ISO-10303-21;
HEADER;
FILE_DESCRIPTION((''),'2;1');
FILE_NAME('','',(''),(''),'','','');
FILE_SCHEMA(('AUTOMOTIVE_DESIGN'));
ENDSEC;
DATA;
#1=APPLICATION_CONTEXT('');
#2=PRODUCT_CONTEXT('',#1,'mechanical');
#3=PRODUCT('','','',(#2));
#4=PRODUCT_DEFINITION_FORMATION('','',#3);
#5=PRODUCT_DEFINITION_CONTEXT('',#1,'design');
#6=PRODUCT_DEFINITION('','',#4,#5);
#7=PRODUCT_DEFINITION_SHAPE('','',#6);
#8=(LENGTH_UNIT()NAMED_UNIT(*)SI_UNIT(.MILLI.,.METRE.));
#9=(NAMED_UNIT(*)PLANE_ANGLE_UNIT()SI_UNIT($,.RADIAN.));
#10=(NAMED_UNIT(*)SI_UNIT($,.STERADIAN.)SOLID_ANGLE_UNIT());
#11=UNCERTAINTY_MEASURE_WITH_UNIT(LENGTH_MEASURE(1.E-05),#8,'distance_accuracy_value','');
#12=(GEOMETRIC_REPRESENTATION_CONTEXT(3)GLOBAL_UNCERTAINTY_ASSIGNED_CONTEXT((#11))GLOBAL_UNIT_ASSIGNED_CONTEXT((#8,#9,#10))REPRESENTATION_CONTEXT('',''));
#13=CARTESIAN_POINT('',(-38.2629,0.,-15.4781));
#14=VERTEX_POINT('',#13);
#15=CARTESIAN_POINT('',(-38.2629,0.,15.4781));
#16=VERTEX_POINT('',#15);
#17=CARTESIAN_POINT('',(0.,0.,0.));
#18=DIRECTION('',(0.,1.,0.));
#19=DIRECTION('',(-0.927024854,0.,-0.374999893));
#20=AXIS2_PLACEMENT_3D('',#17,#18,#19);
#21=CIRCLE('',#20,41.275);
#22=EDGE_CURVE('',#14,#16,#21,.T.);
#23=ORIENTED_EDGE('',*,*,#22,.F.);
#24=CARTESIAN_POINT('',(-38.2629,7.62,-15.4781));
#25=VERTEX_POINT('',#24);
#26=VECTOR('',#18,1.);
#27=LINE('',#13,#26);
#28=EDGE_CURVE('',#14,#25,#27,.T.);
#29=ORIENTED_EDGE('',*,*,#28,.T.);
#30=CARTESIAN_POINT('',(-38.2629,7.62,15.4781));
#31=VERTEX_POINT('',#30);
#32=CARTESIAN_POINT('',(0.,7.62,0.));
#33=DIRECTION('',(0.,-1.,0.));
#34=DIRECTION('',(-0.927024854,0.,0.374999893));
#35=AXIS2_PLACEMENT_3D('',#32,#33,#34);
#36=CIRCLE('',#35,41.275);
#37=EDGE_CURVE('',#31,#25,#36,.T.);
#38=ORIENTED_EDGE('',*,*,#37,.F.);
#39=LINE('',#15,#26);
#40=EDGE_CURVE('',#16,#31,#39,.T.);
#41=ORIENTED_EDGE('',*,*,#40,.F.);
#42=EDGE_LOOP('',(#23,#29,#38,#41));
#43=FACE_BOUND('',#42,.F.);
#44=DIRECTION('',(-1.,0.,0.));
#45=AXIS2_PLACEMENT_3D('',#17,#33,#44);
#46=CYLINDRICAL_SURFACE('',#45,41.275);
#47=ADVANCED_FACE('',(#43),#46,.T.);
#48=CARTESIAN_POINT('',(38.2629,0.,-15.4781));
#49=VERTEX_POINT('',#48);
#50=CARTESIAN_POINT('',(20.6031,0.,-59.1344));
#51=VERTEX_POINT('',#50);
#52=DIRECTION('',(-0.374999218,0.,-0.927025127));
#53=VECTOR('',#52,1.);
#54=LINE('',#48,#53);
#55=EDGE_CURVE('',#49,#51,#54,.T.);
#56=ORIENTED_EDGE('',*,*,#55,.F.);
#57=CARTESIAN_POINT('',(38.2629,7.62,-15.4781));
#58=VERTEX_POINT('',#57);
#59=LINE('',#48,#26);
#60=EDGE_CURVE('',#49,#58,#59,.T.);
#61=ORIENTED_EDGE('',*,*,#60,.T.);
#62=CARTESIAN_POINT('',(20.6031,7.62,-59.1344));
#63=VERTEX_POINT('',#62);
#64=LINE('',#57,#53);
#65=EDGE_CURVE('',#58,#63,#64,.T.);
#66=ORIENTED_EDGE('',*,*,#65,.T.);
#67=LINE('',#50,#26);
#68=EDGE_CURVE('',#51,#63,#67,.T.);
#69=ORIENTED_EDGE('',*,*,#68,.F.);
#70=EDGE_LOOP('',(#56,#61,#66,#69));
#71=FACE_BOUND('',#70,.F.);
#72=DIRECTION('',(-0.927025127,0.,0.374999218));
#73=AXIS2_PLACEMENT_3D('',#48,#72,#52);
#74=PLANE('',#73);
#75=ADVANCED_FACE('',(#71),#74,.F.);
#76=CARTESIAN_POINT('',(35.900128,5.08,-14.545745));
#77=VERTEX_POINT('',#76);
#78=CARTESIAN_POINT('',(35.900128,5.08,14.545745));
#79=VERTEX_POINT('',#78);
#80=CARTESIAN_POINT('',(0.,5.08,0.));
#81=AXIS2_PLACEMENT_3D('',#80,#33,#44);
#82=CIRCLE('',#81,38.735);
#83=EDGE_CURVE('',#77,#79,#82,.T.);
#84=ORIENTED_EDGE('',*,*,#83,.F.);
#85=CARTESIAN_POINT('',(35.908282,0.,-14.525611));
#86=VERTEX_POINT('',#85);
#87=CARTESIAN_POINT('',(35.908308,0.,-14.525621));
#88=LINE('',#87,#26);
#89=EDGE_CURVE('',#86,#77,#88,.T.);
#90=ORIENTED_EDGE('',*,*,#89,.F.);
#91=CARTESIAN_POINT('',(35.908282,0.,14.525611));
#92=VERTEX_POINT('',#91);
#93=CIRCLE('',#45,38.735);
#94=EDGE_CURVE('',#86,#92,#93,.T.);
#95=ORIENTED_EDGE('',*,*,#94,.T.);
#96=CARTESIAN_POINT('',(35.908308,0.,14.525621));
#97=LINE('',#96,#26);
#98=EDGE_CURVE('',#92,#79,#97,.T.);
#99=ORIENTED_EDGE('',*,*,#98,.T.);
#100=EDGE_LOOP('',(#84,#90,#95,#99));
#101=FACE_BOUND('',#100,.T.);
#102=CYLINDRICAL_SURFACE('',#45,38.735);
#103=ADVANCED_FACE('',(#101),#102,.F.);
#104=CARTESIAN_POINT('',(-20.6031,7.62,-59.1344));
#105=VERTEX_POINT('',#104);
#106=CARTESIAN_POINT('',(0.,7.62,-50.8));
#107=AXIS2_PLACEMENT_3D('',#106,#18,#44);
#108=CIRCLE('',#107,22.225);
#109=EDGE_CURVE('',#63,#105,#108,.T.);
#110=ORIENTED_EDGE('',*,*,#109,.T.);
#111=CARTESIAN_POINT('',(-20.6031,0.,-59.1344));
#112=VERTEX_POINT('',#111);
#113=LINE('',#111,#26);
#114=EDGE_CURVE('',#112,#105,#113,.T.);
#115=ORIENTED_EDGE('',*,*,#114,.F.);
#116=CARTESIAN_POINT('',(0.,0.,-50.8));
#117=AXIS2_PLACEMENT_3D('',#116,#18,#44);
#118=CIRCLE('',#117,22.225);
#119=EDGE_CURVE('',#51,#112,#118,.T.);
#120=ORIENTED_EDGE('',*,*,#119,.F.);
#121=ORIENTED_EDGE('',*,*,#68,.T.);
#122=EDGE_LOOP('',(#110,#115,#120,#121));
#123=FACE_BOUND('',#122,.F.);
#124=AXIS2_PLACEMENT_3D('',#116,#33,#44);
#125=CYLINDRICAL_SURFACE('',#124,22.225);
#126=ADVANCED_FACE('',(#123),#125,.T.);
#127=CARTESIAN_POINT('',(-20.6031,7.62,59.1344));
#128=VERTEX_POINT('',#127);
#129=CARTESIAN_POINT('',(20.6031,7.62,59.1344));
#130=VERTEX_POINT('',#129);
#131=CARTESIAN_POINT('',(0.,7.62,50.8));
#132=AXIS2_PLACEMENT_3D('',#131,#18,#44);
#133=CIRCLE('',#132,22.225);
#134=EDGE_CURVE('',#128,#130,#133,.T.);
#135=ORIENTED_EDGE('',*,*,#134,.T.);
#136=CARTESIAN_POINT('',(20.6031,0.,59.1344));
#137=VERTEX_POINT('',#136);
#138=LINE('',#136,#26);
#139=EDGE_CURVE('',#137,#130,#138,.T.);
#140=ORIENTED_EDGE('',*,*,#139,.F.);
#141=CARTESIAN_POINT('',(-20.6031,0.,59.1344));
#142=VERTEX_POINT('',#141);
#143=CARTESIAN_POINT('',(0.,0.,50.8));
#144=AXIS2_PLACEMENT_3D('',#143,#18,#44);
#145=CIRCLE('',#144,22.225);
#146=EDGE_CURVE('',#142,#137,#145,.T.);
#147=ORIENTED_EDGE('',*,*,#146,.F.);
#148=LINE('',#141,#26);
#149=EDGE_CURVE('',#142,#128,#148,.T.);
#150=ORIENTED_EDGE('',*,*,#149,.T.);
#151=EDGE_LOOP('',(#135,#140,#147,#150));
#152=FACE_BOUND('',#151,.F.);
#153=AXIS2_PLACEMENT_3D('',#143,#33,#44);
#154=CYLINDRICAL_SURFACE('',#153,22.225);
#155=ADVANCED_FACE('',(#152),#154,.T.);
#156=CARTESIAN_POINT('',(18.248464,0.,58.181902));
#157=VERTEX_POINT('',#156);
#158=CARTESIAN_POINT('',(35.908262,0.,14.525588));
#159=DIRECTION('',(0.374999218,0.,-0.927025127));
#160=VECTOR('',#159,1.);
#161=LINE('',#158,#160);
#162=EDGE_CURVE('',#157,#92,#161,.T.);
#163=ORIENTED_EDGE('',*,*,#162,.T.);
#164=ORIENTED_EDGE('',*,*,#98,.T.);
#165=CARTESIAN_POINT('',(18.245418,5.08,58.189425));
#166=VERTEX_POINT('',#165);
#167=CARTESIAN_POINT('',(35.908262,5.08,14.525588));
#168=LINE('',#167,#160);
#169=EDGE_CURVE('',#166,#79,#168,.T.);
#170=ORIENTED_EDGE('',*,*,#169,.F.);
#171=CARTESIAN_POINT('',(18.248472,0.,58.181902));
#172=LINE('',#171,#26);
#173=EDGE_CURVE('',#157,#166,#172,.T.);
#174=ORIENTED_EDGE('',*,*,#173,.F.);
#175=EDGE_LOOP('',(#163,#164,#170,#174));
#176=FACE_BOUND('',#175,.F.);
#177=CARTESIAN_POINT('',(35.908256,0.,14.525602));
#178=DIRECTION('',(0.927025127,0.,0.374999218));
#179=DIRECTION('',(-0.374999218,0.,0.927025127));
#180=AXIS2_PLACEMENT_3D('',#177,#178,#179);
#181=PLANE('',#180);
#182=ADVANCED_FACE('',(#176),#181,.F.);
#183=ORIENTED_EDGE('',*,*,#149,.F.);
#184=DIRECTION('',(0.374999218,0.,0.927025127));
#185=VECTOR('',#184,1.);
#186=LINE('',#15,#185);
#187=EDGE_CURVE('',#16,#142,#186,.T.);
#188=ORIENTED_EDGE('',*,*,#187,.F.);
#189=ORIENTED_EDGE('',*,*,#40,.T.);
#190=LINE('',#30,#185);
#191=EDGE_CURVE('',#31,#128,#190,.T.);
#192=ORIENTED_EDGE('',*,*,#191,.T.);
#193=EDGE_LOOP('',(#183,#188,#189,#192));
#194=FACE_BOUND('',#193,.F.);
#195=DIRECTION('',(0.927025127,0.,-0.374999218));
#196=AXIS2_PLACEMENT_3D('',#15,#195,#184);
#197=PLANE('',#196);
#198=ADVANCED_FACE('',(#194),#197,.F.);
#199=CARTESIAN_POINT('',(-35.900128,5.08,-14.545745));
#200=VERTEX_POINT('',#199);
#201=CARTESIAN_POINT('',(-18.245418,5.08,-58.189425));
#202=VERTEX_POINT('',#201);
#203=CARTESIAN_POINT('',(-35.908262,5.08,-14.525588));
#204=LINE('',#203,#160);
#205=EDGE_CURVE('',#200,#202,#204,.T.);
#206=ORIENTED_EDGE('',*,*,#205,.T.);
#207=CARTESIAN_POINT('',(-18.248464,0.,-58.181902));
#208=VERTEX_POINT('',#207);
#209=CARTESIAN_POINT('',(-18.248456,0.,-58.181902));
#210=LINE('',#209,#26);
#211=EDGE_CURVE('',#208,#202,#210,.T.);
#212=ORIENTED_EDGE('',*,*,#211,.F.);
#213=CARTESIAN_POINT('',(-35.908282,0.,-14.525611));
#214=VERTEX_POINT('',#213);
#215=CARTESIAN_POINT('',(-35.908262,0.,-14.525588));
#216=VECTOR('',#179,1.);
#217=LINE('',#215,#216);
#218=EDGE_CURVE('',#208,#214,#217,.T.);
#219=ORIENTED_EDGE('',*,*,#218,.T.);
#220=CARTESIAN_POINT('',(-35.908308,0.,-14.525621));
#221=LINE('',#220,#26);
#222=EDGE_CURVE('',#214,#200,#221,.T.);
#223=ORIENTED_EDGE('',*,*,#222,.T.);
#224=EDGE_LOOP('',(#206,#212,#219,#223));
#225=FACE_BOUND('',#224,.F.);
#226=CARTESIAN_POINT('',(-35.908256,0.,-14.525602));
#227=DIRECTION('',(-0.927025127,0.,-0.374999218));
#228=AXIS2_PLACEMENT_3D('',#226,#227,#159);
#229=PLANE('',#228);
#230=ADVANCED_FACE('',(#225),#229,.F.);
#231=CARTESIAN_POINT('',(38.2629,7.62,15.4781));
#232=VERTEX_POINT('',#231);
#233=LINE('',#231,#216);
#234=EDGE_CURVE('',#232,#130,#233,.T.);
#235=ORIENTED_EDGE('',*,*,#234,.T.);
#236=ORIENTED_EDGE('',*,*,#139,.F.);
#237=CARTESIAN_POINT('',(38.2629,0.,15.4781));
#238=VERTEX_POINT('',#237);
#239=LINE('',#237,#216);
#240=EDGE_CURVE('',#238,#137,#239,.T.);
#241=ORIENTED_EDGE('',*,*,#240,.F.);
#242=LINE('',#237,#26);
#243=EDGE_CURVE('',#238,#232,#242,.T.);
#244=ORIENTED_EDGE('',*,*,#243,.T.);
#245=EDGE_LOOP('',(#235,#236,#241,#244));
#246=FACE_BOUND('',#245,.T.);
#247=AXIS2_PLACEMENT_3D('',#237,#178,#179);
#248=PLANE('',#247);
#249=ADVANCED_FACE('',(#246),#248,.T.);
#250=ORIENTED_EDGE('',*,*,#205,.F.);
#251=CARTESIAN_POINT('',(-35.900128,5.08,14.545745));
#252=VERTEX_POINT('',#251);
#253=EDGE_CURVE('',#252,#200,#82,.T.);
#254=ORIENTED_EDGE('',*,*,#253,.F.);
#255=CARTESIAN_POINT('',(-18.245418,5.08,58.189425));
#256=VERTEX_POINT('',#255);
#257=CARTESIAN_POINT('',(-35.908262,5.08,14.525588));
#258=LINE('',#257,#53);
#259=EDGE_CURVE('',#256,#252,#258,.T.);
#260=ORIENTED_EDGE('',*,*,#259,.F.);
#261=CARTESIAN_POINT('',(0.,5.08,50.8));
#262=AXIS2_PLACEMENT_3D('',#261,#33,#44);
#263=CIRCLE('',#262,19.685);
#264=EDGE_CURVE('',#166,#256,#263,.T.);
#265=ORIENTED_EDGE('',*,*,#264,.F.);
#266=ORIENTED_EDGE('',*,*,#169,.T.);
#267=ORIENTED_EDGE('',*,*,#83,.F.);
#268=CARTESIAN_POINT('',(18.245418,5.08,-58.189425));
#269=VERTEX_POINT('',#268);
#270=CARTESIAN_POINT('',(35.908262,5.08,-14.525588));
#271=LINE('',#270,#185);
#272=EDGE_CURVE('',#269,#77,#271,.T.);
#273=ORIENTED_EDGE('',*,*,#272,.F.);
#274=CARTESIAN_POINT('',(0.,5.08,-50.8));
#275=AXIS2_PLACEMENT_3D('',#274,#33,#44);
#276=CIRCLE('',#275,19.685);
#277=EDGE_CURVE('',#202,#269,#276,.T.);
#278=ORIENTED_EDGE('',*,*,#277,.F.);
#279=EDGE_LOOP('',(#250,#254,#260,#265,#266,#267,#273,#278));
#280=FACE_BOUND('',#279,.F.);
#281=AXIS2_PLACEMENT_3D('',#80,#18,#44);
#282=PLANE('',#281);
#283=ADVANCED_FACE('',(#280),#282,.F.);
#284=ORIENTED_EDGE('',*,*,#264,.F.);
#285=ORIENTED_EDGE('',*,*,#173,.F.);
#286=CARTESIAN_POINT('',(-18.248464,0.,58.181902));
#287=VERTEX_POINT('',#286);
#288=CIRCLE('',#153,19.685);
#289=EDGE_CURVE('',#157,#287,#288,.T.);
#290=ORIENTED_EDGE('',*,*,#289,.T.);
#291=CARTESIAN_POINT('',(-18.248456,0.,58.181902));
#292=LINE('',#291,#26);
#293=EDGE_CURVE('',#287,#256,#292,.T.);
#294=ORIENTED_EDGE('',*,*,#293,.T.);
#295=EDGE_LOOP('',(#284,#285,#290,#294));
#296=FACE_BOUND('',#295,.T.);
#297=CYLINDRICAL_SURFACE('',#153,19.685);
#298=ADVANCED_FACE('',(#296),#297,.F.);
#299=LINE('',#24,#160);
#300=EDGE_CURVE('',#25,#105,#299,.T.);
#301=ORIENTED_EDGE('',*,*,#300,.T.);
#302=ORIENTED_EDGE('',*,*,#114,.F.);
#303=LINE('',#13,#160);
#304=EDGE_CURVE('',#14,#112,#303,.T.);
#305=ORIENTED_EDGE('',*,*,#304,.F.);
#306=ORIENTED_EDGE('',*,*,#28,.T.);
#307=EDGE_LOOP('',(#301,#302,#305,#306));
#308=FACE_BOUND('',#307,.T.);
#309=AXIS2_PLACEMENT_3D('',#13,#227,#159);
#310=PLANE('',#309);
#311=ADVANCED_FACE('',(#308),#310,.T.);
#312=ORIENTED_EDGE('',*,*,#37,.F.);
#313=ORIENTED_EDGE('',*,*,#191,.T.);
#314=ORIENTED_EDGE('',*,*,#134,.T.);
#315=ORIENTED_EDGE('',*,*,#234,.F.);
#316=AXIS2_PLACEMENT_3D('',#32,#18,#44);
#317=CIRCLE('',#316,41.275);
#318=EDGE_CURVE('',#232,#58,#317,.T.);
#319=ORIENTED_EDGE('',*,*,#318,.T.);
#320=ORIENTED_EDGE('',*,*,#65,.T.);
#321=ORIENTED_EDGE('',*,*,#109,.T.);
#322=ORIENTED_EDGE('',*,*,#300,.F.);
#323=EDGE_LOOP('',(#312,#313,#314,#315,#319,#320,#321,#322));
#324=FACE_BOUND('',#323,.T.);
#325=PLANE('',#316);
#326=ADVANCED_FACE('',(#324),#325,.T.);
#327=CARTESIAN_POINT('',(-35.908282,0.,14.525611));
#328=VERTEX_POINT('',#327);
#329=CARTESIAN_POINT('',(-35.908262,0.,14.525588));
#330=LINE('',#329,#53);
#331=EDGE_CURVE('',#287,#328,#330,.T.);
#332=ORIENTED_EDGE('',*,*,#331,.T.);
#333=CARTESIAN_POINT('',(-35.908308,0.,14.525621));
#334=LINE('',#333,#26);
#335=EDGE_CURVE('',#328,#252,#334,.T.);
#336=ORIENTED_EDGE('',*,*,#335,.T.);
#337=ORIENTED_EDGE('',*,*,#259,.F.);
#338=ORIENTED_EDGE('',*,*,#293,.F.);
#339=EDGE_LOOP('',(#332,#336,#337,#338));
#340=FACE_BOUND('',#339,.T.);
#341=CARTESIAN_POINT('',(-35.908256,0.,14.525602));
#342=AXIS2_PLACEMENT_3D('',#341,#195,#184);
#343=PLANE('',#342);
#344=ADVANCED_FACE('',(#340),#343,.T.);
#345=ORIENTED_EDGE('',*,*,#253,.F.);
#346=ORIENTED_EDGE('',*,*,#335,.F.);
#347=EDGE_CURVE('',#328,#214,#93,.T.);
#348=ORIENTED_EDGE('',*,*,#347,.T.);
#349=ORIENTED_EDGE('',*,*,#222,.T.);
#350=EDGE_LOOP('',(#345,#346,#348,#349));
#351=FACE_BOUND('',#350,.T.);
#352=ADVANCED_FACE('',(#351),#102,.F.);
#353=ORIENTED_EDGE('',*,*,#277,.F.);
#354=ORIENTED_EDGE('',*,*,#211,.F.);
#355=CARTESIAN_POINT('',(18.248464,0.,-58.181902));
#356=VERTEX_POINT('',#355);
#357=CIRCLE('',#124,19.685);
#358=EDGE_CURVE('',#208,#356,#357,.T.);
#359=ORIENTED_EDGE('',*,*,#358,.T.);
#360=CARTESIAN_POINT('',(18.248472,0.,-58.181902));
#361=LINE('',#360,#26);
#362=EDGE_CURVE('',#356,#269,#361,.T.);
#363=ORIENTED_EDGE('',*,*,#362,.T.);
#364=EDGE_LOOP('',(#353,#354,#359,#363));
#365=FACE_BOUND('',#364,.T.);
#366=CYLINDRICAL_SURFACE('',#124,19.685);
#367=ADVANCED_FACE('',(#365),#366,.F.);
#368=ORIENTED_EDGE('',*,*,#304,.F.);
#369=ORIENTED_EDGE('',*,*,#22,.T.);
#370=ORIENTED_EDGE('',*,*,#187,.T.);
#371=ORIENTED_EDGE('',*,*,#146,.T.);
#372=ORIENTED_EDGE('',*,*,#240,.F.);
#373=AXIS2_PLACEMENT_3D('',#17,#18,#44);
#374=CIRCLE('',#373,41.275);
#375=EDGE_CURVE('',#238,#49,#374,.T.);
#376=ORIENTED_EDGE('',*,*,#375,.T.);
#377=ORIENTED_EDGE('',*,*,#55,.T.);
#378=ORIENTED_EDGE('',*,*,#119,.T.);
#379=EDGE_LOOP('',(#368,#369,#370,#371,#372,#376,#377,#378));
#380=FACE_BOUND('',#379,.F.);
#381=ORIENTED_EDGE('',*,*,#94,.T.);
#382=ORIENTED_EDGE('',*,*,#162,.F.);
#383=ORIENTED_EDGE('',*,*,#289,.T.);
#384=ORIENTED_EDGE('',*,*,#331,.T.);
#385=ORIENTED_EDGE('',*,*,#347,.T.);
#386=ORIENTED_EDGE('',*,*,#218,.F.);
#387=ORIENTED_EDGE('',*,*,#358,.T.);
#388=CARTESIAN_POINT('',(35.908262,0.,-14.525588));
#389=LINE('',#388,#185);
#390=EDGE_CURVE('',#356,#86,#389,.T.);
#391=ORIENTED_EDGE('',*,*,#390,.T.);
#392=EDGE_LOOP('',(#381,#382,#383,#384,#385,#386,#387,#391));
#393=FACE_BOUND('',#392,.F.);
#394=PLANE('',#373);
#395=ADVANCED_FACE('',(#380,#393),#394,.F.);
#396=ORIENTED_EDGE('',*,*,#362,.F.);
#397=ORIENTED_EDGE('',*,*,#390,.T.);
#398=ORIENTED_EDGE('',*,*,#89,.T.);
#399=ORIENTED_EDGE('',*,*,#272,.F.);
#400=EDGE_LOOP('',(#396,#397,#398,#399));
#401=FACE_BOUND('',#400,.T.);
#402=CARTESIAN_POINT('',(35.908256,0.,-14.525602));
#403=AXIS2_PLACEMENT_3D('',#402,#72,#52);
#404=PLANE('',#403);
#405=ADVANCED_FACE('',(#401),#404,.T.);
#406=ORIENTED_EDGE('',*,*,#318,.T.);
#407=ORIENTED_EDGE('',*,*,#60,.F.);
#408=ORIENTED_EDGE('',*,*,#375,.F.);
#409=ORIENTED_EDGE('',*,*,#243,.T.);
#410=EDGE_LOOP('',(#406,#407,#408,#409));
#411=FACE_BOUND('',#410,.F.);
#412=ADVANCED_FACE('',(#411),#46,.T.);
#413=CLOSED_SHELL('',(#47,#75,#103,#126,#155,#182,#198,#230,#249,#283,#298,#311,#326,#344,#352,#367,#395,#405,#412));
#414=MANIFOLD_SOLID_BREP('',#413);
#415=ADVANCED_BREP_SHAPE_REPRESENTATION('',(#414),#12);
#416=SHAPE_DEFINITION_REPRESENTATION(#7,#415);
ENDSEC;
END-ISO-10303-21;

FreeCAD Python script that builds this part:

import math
import FreeCAD as App
import Part
import Sketcher

V = App.Vector
Q = App.Units.Quantity


def faces_at(feature, points):
    """Names of the faces that lie closest to the given points."""
    faces = feature.Shape.Faces
    near = lambda p: min(range(len(faces)), key=lambda i: faces[i].distToShape(Part.Vertex(*p))[0])
    return sorted({f"Face{near(p) + 1}" for p in points})

doc = App.newDocument("Part")
body = doc.addObject("PartDesign::Body", "Body")

# Sketch on XZ plane
sketch1 = body.newObject("Sketcher::SketchObject", "Sketch")
sketch1.AttachmentSupport = (doc.getObject("XZ_Plane"), [""])
sketch1.MapMode = "FlatFace"
sketch1.addGeometry([
    Part.ArcOfCircle(Part.Circle(V(0, 0, 0), V(0, 0, 1), 41), math.radians(158), math.radians(202)),  # 0
    Part.LineSegment(V(-38, 15, 0), V(-21, 59, 0)),  # 1
    Part.ArcOfCircle(Part.Circle(V(0, 51, 0), V(0, 0, 1), 22), math.radians(22), math.radians(158)),  # 2
    Part.LineSegment(V(21, 59, 0), V(38, 15, 0)),  # 3
    Part.ArcOfCircle(Part.Circle(V(0, 0, 0), V(0, 0, 1), 41), math.radians(-22), math.radians(22)),  # 4
    Part.LineSegment(V(38, -15, 0), V(21, -59, 0)),  # 5
    Part.ArcOfCircle(Part.Circle(V(0, -51, 0), V(0, 0, 1), 22), math.radians(-158), math.radians(-22)),  # 6
    Part.LineSegment(V(-21, -59, 0), V(-38, -15, 0)),  # 7
], False)
sketch1.addConstraint([
    Sketcher.Constraint("Tangent", 0, 1, 1, 1),
    Sketcher.Constraint("Tangent", 1, 2, 2, 2),
    Sketcher.Constraint("Tangent", 2, 1, 3, 1),
    Sketcher.Constraint("Tangent", 3, 2, 4, 2),
    Sketcher.Constraint("Tangent", 4, 1, 5, 1),
    Sketcher.Constraint("Tangent", 5, 2, 6, 2),
    Sketcher.Constraint("Tangent", 6, 1, 7, 1),
    Sketcher.Constraint("Tangent", 7, 2, 0, 2),
    Sketcher.Constraint("Coincident", 0, 3, -1, 1),
    Sketcher.Constraint("Coincident", 4, 3, -1, 1),
    Sketcher.Constraint("Equal", 0, 4),
    Sketcher.Constraint("Equal", 2, 6),
    Sketcher.Constraint("Symmetric", 2, 3, 6, 3, -1, 1),
    Sketcher.Constraint("PointOnObject", 2, 3, -2),
    Sketcher.Constraint("DistanceY", -1, 1, 2, 3, Q("2 in")),
    Sketcher.Constraint("Radius", 0, Q("1.625 in")),
    Sketcher.Constraint("Radius", 2, Q("0.875 in")),
])
pad1 = body.newObject("PartDesign::Pad", "Pad")
pad1.Profile = sketch1
pad1.Length = Q("0.3 in")
pad1.Reversed = True
doc.recompute()

thickness = body.newObject("PartDesign::Thickness", "Thickness")
thickness.Base = (pad1, faces_at(pad1, [(-6.868, 0, -30.03)]))
thickness.Value = Q("0.1 in")
thickness.Reversed = True
thickness.Join = "Intersection"

doc.recompute()
